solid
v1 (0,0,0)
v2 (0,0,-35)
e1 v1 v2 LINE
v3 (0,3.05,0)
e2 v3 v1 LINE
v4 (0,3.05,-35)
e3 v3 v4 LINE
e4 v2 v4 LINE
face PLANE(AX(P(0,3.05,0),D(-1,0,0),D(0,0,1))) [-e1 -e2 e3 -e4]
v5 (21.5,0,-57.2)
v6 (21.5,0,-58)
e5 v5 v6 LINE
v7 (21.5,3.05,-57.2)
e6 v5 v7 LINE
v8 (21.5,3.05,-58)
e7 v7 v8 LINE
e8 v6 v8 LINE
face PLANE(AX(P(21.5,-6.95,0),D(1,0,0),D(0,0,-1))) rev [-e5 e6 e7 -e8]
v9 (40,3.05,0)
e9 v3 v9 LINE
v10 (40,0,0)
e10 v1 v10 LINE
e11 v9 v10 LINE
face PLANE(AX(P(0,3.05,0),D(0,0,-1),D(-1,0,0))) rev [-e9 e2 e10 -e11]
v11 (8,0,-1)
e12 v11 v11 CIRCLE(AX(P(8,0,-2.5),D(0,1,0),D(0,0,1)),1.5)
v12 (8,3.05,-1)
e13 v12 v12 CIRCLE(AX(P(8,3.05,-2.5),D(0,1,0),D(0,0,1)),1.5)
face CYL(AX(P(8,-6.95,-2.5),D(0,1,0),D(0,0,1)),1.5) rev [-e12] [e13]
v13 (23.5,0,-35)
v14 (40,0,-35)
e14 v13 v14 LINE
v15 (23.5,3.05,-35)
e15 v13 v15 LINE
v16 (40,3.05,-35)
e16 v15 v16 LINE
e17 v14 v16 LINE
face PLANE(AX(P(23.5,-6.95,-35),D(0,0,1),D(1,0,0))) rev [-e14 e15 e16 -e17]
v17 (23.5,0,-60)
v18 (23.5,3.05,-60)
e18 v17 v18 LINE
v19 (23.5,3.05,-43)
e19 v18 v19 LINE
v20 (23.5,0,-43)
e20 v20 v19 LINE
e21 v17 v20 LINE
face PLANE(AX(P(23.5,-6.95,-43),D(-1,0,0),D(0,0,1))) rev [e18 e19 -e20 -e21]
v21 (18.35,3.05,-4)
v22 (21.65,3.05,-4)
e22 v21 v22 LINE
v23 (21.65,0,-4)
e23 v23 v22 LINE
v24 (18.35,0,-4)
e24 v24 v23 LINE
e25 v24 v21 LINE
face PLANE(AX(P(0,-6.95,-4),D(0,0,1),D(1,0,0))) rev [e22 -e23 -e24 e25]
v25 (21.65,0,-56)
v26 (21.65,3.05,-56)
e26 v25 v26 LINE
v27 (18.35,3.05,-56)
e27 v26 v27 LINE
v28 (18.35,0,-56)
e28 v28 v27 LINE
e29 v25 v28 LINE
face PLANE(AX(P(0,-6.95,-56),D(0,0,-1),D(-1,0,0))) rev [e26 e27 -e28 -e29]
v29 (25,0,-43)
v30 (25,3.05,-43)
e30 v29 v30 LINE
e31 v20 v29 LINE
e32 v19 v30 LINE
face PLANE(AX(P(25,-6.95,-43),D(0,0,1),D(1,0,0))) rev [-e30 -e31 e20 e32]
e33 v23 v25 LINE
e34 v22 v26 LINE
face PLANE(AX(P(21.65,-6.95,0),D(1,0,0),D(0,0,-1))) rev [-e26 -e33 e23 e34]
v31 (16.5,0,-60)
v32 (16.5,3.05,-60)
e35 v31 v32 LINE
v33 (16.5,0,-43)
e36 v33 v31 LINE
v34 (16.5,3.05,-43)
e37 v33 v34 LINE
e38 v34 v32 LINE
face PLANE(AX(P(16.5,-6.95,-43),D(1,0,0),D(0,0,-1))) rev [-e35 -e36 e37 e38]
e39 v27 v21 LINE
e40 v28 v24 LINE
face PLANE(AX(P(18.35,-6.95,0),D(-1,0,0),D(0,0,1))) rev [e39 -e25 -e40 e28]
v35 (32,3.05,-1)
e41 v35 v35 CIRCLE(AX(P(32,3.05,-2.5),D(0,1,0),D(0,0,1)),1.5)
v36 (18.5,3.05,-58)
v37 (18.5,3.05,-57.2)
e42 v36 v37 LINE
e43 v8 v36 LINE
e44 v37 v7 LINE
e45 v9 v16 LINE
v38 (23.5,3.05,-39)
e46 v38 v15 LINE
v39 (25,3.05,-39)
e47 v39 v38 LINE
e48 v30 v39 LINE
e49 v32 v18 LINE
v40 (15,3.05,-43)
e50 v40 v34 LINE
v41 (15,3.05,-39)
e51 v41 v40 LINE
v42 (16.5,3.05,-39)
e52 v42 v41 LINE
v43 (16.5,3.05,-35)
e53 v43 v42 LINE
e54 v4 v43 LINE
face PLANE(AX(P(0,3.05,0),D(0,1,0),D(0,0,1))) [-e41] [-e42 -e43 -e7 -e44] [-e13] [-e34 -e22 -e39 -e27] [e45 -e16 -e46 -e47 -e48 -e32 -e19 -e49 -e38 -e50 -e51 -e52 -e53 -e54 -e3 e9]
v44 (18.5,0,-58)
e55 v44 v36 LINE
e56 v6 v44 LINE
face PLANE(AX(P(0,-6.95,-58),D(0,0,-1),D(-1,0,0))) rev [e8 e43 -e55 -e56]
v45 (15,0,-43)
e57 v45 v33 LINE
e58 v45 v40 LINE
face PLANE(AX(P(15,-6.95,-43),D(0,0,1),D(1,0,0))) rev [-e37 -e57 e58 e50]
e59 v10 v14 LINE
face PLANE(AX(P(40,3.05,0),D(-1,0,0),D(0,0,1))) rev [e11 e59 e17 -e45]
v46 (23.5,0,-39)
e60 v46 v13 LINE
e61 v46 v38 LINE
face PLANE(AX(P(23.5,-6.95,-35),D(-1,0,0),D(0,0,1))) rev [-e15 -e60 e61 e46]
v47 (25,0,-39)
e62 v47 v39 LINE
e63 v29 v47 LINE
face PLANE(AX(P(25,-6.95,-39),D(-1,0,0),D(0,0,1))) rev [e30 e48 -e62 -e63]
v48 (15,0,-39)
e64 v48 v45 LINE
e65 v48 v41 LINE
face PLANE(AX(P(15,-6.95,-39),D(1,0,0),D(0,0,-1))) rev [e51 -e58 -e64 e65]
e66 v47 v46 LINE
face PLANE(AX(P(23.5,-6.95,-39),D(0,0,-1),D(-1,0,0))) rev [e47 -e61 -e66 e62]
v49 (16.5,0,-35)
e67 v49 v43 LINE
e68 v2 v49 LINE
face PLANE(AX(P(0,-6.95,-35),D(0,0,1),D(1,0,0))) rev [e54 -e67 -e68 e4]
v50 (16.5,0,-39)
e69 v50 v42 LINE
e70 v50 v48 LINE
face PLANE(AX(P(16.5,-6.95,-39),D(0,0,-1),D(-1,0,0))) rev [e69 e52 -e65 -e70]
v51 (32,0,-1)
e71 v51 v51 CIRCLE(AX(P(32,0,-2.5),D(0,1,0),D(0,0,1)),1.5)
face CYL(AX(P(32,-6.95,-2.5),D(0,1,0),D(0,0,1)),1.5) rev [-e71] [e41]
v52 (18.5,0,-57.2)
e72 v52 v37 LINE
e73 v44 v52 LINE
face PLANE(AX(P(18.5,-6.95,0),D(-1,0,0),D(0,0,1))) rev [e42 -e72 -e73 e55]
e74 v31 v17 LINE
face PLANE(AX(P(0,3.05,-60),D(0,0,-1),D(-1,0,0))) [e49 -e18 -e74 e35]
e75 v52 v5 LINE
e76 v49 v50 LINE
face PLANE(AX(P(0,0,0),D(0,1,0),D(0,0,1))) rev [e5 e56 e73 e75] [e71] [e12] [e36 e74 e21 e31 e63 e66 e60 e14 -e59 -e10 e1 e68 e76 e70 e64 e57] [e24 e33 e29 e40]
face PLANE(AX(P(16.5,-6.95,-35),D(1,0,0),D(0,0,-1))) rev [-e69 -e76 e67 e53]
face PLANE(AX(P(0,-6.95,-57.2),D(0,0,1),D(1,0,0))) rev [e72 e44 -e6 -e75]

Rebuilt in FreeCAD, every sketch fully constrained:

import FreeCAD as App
import Part
import Sketcher

V = App.Vector
Q = App.Units.Quantity

doc = App.newDocument("Part")
body = doc.addObject("PartDesign::Body", "Body")

# Sketch on XZ plane
sketch1 = doc.addObject("Sketcher::SketchObject", "Sketch")
body.addObject(sketch1)
sketch1.AttachmentSupport = (doc.XZ_Plane, [""])
sketch1.MapMode = "FlatFace"
sketch1.addGeometry(Part.LineSegment(V(0, -60, 0), V(0, 0, 0)), False)
sketch1.addGeometry(Part.LineSegment(V(0, 0, 0), V(40, 0, 0)), False)
sketch1.addGeometry(Part.LineSegment(V(40, 0, 0), V(40, -60, 0)), False)
sketch1.addGeometry(Part.LineSegment(V(40, -60, 0), V(0, -60, 0)), False)
sketch1.addConstraint(Sketcher.Constraint("Coincident", 0, 2, 1, 1))
sketch1.addConstraint(Sketcher.Constraint("Coincident", 1, 2, 2, 1))
sketch1.addConstraint(Sketcher.Constraint("Coincident", 2, 2, 3, 1))
sketch1.addConstraint(Sketcher.Constraint("Coincident", 3, 2, 0, 1))
sketch1.addConstraint(Sketcher.Constraint("Vertical", 0))
sketch1.addConstraint(Sketcher.Constraint("Horizontal", 1))
sketch1.addConstraint(Sketcher.Constraint("Vertical", 2))
sketch1.addConstraint(Sketcher.Constraint("Horizontal", 3))
sketch1.addConstraint(Sketcher.Constraint("Coincident", 0, 2, -1, 1))
sketch1.addConstraint(Sketcher.Constraint("DistanceX", 1, 1, 1, 2, Q("40 mm")))
sketch1.addConstraint(Sketcher.Constraint("DistanceY", 0, 1, 0, 2, Q("60 mm")))
pad1 = doc.addObject("PartDesign::Pad", "Pad")
body.addObject(pad1)
pad1.Profile = sketch1
pad1.Length = 3.05
pad1.Reversed = True

# Sketch on XZ plane
sketch2 = doc.addObject("Sketcher::SketchObject", "Sketch001")
body.addObject(sketch2)
sketch2.AttachmentSupport = (doc.XZ_Plane, [""])
sketch2.MapMode = "FlatFace"
sketch2.AttachmentOffset = App.Placement(V(0, 0, -3.05), App.Rotation())
sketch2.addGeometry(Part.LineSegment(V(18.35, -56, 0), V(18.35, -4, 0)), False)
sketch2.addGeometry(Part.LineSegment(V(18.35, -4, 0), V(21.65, -4, 0)), False)
sketch2.addGeometry(Part.LineSegment(V(21.65, -4, 0), V(21.65, -56, 0)), False)
sketch2.addGeometry(Part.LineSegment(V(21.65, -56, 0), V(18.35, -56, 0)), False)
sketch2.addGeometry(Part.LineSegment(V(18.5, -58, 0), V(18.5, -57.2, 0)), False)
sketch2.addGeometry(Part.LineSegment(V(18.5, -57.2, 0), V(21.5, -57.2, 0)), False)
sketch2.addGeometry(Part.LineSegment(V(21.5, -57.2, 0), V(21.5, -58, 0)), False)
sketch2.addGeometry(Part.LineSegment(V(21.5, -58, 0), V(18.5, -58, 0)), False)
sketch2.addConstraint(Sketcher.Constraint("Coincident", 0, 2, 1, 1))
sketch2.addConstraint(Sketcher.Constraint("Coincident", 1, 2, 2, 1))
sketch2.addConstraint(Sketcher.Constraint("Coincident", 2, 2, 3, 1))
sketch2.addConstraint(Sketcher.Constraint("Coincident", 3, 2, 0, 1))
sketch2.addConstraint(Sketcher.Constraint("Coincident", 4, 2, 5, 1))
sketch2.addConstraint(Sketcher.Constraint("Coincident", 5, 2, 6, 1))
sketch2.addConstraint(Sketcher.Constraint("Coincident", 6, 2, 7, 1))
sketch2.addConstraint(Sketcher.Constraint("Coincident", 7, 2, 4, 1))
sketch2.addConstraint(Sketcher.Constraint("Vertical", 0))
sketch2.addConstraint(Sketcher.Constraint("Horizontal", 1))
sketch2.addConstraint(Sketcher.Constraint("Vertical", 2))
sketch2.addConstraint(Sketcher.Constraint("Horizontal", 3))
sketch2.addConstraint(Sketcher.Constraint("Vertical", 4))
sketch2.addConstraint(Sketcher.Constraint("Horizontal", 5))
sketch2.addConstraint(Sketcher.Constraint("Vertical", 6))
sketch2.addConstraint(Sketcher.Constraint("Horizontal", 7))
sketch2.addConstraint(Sketcher.Constraint("DistanceX", 5, 1, 5, 2, Q("3 mm")))
sketch2.addConstraint(Sketcher.Constraint("DistanceY", 0, 1, 0, 2, Q("52 mm")))
sketch2.addConstraint(Sketcher.Constraint("DistanceX", 1, 1, 1, 2, Q("3.3 mm")))
sketch2.addConstraint(Sketcher.Constraint("DistanceY", 4, 1, 4, 2, Q("0.8 mm")))
sketch2.addConstraint(Sketcher.Constraint("DistanceY", 0, 2, -1, 1, Q("4 mm")))
sketch2.addConstraint(Sketcher.Constraint("DistanceY", 6, 2, -1, 1, Q("58 mm")))
sketch2.addConstraint(Sketcher.Constraint("DistanceX", -1, 1, 4, 2, Q("18.5 mm")))
sketch2.addConstraint(Sketcher.Constraint("DistanceX", -1, 1, 0, 2, Q("18.35 mm")))
pocket1 = doc.addObject("PartDesign::Pocket", "Pocket")
body.addObject(pocket1)
pocket1.Profile = sketch2
pocket1.Length = 10
pocket1.Reversed = True

# Sketch on XZ plane
sketch3 = doc.addObject("Sketcher::SketchObject", "Sketch002")
body.addObject(sketch3)
sketch3.AttachmentSupport = (doc.XZ_Plane, [""])
sketch3.MapMode = "FlatFace"
sketch3.AttachmentOffset = App.Placement(V(0, 0, -3.05), App.Rotation())
sketch3.addGeometry(Part.LineSegment(V(0, -60, 0), V(0, -35, 0)), False)
sketch3.addGeometry(Part.LineSegment(V(0, -35, 0), V(16.5, -35, 0)), False)
sketch3.addGeometry(Part.LineSegment(V(16.5, -35, 0), V(16.5, -39, 0)), False)
sketch3.addGeometry(Part.LineSegment(V(16.5, -39, 0), V(15, -39, 0)), False)
sketch3.addGeometry(Part.LineSegment(V(15, -39, 0), V(15, -43, 0)), False)
sketch3.addGeometry(Part.LineSegment(V(15, -43, 0), V(16.5, -43, 0)), False)
sketch3.addGeometry(Part.LineSegment(V(16.5, -43, 0), V(16.5, -60, 0)), False)
sketch3.addGeometry(Part.LineSegment(V(16.5, -60, 0), V(0, -60, 0)), False)
sketch3.addGeometry(Part.LineSegment(V(40, -35, 0), V(40, -60, 0)), False)
sketch3.addGeometry(Part.LineSegment(V(40, -60, 0), V(23.5, -60, 0)), False)
sketch3.addGeometry(Part.LineSegment(V(23.5, -60, 0), V(23.5, -43, 0)), False)
sketch3.addGeometry(Part.LineSegment(V(23.5, -43, 0), V(25, -43, 0)), False)
sketch3.addGeometry(Part.LineSegment(V(25, -43, 0), V(25, -39, 0)), False)
sketch3.addGeometry(Part.LineSegment(V(25, -39, 0), V(23.5, -39, 0)), False)
sketch3.addGeometry(Part.LineSegment(V(23.5, -39, 0), V(23.5, -35, 0)), False)
sketch3.addGeometry(Part.LineSegment(V(23.5, -35, 0), V(40, -35, 0)), False)
sketch3.addConstraint(Sketcher.Constraint("Coincident", 0, 2, 1, 1))
sketch3.addConstraint(Sketcher.Constraint("Coincident", 1, 2, 2, 1))
sketch3.addConstraint(Sketcher.Constraint("Coincident", 2, 2, 3, 1))
sketch3.addConstraint(Sketcher.Constraint("Coincident", 3, 2, 4, 1))
sketch3.addConstraint(Sketcher.Constraint("Coincident", 4, 2, 5, 1))
sketch3.addConstraint(Sketcher.Constraint("Coincident", 5, 2, 6, 1))
sketch3.addConstraint(Sketcher.Constraint("Coincident", 6, 2, 7, 1))
sketch3.addConstraint(Sketcher.Constraint("Coincident", 7, 2, 0, 1))
sketch3.addConstraint(Sketcher.Constraint("Coincident", 8, 2, 9, 1))
sketch3.addConstraint(Sketcher.Constraint("Coincident", 9, 2, 10, 1))
sketch3.addConstraint(Sketcher.Constraint("Coincident", 10, 2, 11, 1))
sketch3.addConstraint(Sketcher.Constraint("Coincident", 11, 2, 12, 1))
sketch3.addConstraint(Sketcher.Constraint("Coincident", 12, 2, 13, 1))
sketch3.addConstraint(Sketcher.Constraint("Coincident", 13, 2, 14, 1))
sketch3.addConstraint(Sketcher.Constraint("Coincident", 14, 2, 15, 1))
sketch3.addConstraint(Sketcher.Constraint("Coincident", 15, 2, 8, 1))
sketch3.addConstraint(Sketcher.Constraint("Vertical", 0))
sketch3.addConstraint(Sketcher.Constraint("Horizontal", 1))
sketch3.addConstraint(Sketcher.Constraint("Vertical", 2))
sketch3.addConstraint(Sketcher.Constraint("Horizontal", 3))
sketch3.addConstraint(Sketcher.Constraint("Vertical", 4))
sketch3.addConstraint(Sketcher.Constraint("Horizontal", 5))
sketch3.addConstraint(Sketcher.Constraint("Vertical", 6))
sketch3.addConstraint(Sketcher.Constraint("Horizontal", 7))
sketch3.addConstraint(Sketcher.Constraint("Vertical", 8))
sketch3.addConstraint(Sketcher.Constraint("Horizontal", 9))
sketch3.addConstraint(Sketcher.Constraint("Vertical", 10))
sketch3.addConstraint(Sketcher.Constraint("Horizontal", 11))
sketch3.addConstraint(Sketcher.Constraint("Vertical", 12))
sketch3.addConstraint(Sketcher.Constraint("Horizontal", 13))
sketch3.addConstraint(Sketcher.Constraint("Vertical", 14))
sketch3.addConstraint(Sketcher.Constraint("Horizontal", 15))
sketch3.addConstraint(Sketcher.Constraint("PointOnObject", 0, 2, -2))
sketch3.addConstraint(Sketcher.Constraint("Horizontal", 7, 2, 8, 2))
sketch3.addConstraint(Sketcher.Constraint("Horizontal", 5, 2, 10, 2))
sketch3.addConstraint(Sketcher.Constraint("Horizontal", 3, 2, 12, 2))
sketch3.addConstraint(Sketcher.Constraint("Horizontal", 1, 2, 14, 2))
sketch3.addConstraint(Sketcher.Constraint("Vertical", 2, 2, 5, 2))
sketch3.addConstraint(Sketcher.Constraint("Vertical", 10, 2, 13, 2))
sketch3.addConstraint(Sketcher.Constraint("Equal", 7, 9))
sketch3.addConstraint(Sketcher.Constraint("Equal", 5, 11))
sketch3.addConstraint(Sketcher.Constraint("Equal", 2, 4))
sketch3.addConstraint(Sketcher.Constraint("DistanceY", 0, 1, 0, 2, Q("25 mm")))
sketch3.addConstraint(Sketcher.Constraint("DistanceY", 2, 2, 2, 1, Q("4 mm")))
sketch3.addConstraint(Sketcher.Constraint("DistanceX", 1, 1, 1, 2, Q("16.5 mm")))
sketch3.addConstraint(Sketcher.Constraint("DistanceX", 3, 2, 3, 1, Q("1.5 mm")))
sketch3.addConstraint(Sketcher.Constraint("DistanceY", 0, 2, -1, 1, Q("35 mm")))
sketch3.addConstraint(Sketcher.Constraint("DistanceX", -1, 1, 8, 2, Q("40 mm")))
pocket2 = doc.addObject("PartDesign::Pocket", "Pocket001")
body.addObject(pocket2)
pocket2.Profile = sketch3
pocket2.Length = 10
pocket2.Reversed = True

# Sketch on XZ plane
sketch4 = doc.addObject("Sketcher::SketchObject", "Sketch003")
body.addObject(sketch4)
sketch4.AttachmentSupport = (doc.XZ_Plane, [""])
sketch4.MapMode = "FlatFace"
sketch4.AttachmentOffset = App.Placement(V(0, 0, -3.05), App.Rotation())
sketch4.addGeometry(Part.Circle(V(8, -2.5, 0), V(0, 0, 1), 1.5), False)
sketch4.addGeometry(Part.Circle(V(32, -2.5, 0), V(0, 0, 1), 1.5), False)
sketch4.addConstraint(Sketcher.Constraint("Equal", 0, 1))
sketch4.addConstraint(Sketcher.Constraint("Horizontal", 0, 3, 1, 3))
sketch4.addConstraint(Sketcher.Constraint("Diameter", 0, Q("3 mm")))
sketch4.addConstraint(Sketcher.Constraint("DistanceX", -1, 1, 0, 3, Q("8 mm")))
sketch4.addConstraint(Sketcher.Constraint("DistanceX", -1, 1, 1, 3, Q("32 mm")))
sketch4.addConstraint(Sketcher.Constraint("DistanceY", 0, 3, -1, 1, Q("2.5 mm")))
pocket3 = doc.addObject("PartDesign::Pocket", "Pocket002")
body.addObject(pocket3)
pocket3.Profile = sketch4
pocket3.Length = 10
pocket3.Reversed = True

doc.recompute()
